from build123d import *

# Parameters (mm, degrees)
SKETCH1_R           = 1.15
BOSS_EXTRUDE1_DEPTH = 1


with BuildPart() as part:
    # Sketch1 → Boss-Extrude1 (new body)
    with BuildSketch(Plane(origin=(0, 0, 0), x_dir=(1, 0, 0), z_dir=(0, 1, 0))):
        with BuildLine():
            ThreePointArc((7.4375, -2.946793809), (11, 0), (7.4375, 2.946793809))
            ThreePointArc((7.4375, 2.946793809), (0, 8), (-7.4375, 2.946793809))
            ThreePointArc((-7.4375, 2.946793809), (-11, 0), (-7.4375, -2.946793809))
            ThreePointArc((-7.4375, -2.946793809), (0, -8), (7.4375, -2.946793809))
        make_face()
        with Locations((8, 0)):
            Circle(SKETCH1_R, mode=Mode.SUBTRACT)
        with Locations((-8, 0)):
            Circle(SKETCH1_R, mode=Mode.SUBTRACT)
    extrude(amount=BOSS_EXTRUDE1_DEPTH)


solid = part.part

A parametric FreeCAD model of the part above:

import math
import FreeCAD as App
import Part
import Sketcher

V = App.Vector

doc = App.newDocument("Part")
body = doc.addObject("PartDesign::Body", "Body")

sketch1 = doc.addObject("Sketcher::SketchObject", "Sketch")
body.addObject(sketch1)
sketch1.AttachmentSupport = (doc.XZ_Plane, [""])
sketch1.MapMode = "FlatFace"
sketch1.addGeometry(Part.ArcOfCircle(Part.Circle(V(8, 0, 0), V(0, 0, 1), 3), math.radians(-101), math.radians(101)), False)
sketch1.addGeometry(Part.ArcOfCircle(Part.Circle(V(0, 0, 0), V(0, 0, 1), 8), math.radians(-158), math.radians(-22)), False)
sketch1.addGeometry(Part.ArcOfCircle(Part.Circle(V(-8, 0, 0), V(0, 0, 1), 3), math.radians(79), math.radians(281)), False)
sketch1.addGeometry(Part.ArcOfCircle(Part.Circle(V(0, 0, 0), V(0, 0, 1), 8), math.radians(22), math.radians(158)), False)
sketch1.addGeometry(Part.Circle(V(-8, 0, 0), V(0, 0, 1), 1.1), False)
sketch1.addGeometry(Part.Circle(V(8, 0, 0), V(0, 0, 1), 1.1), False)
sketch1.addConstraint(Sketcher.Constraint("Coincident", 0, 1, 1, 2))
sketch1.addConstraint(Sketcher.Constraint("Coincident", 1, 1, 2, 2))
sketch1.addConstraint(Sketcher.Constraint("Coincident", 2, 1, 3, 2))
sketch1.addConstraint(Sketcher.Constraint("Coincident", 3, 1, 0, 2))
sketch1.addConstraint(Sketcher.Constraint("Coincident", 1, 3, -1, 1))
sketch1.addConstraint(Sketcher.Constraint("Coincident", 3, 3, -1, 1))
sketch1.addConstraint(Sketcher.Constraint("Coincident", 4, 3, 2, 3))
sketch1.addConstraint(Sketcher.Constraint("Coincident", 5, 3, 0, 3))
sketch1.addConstraint(Sketcher.Constraint("Equal", 0, 2))
sketch1.addConstraint(Sketcher.Constraint("Equal", 1, 3))
sketch1.addConstraint(Sketcher.Constraint("Equal", 4, 5))
sketch1.addConstraint(Sketcher.Constraint("Symmetric", 0, 3, 2, 3, -1, 1))
sketch1.addConstraint(Sketcher.Constraint("PointOnObject", 0, 3, -1))
sketch1.addConstraint(Sketcher.Constraint("Radius", 0, 3.0))
sketch1.addConstraint(Sketcher.Constraint("Radius", 1, 8.0))
sketch1.addConstraint(Sketcher.Constraint("Diameter", 4, 2.3))
sketch1.addConstraint(Sketcher.Constraint("DistanceX", -1, 1, 0, 3, 8.0))
pad1 = doc.addObject("PartDesign::Pad", "Pad")
body.addObject(pad1)
pad1.Profile = sketch1
pad1.Length = 1
pad1.Reversed = True

doc.recompute()
